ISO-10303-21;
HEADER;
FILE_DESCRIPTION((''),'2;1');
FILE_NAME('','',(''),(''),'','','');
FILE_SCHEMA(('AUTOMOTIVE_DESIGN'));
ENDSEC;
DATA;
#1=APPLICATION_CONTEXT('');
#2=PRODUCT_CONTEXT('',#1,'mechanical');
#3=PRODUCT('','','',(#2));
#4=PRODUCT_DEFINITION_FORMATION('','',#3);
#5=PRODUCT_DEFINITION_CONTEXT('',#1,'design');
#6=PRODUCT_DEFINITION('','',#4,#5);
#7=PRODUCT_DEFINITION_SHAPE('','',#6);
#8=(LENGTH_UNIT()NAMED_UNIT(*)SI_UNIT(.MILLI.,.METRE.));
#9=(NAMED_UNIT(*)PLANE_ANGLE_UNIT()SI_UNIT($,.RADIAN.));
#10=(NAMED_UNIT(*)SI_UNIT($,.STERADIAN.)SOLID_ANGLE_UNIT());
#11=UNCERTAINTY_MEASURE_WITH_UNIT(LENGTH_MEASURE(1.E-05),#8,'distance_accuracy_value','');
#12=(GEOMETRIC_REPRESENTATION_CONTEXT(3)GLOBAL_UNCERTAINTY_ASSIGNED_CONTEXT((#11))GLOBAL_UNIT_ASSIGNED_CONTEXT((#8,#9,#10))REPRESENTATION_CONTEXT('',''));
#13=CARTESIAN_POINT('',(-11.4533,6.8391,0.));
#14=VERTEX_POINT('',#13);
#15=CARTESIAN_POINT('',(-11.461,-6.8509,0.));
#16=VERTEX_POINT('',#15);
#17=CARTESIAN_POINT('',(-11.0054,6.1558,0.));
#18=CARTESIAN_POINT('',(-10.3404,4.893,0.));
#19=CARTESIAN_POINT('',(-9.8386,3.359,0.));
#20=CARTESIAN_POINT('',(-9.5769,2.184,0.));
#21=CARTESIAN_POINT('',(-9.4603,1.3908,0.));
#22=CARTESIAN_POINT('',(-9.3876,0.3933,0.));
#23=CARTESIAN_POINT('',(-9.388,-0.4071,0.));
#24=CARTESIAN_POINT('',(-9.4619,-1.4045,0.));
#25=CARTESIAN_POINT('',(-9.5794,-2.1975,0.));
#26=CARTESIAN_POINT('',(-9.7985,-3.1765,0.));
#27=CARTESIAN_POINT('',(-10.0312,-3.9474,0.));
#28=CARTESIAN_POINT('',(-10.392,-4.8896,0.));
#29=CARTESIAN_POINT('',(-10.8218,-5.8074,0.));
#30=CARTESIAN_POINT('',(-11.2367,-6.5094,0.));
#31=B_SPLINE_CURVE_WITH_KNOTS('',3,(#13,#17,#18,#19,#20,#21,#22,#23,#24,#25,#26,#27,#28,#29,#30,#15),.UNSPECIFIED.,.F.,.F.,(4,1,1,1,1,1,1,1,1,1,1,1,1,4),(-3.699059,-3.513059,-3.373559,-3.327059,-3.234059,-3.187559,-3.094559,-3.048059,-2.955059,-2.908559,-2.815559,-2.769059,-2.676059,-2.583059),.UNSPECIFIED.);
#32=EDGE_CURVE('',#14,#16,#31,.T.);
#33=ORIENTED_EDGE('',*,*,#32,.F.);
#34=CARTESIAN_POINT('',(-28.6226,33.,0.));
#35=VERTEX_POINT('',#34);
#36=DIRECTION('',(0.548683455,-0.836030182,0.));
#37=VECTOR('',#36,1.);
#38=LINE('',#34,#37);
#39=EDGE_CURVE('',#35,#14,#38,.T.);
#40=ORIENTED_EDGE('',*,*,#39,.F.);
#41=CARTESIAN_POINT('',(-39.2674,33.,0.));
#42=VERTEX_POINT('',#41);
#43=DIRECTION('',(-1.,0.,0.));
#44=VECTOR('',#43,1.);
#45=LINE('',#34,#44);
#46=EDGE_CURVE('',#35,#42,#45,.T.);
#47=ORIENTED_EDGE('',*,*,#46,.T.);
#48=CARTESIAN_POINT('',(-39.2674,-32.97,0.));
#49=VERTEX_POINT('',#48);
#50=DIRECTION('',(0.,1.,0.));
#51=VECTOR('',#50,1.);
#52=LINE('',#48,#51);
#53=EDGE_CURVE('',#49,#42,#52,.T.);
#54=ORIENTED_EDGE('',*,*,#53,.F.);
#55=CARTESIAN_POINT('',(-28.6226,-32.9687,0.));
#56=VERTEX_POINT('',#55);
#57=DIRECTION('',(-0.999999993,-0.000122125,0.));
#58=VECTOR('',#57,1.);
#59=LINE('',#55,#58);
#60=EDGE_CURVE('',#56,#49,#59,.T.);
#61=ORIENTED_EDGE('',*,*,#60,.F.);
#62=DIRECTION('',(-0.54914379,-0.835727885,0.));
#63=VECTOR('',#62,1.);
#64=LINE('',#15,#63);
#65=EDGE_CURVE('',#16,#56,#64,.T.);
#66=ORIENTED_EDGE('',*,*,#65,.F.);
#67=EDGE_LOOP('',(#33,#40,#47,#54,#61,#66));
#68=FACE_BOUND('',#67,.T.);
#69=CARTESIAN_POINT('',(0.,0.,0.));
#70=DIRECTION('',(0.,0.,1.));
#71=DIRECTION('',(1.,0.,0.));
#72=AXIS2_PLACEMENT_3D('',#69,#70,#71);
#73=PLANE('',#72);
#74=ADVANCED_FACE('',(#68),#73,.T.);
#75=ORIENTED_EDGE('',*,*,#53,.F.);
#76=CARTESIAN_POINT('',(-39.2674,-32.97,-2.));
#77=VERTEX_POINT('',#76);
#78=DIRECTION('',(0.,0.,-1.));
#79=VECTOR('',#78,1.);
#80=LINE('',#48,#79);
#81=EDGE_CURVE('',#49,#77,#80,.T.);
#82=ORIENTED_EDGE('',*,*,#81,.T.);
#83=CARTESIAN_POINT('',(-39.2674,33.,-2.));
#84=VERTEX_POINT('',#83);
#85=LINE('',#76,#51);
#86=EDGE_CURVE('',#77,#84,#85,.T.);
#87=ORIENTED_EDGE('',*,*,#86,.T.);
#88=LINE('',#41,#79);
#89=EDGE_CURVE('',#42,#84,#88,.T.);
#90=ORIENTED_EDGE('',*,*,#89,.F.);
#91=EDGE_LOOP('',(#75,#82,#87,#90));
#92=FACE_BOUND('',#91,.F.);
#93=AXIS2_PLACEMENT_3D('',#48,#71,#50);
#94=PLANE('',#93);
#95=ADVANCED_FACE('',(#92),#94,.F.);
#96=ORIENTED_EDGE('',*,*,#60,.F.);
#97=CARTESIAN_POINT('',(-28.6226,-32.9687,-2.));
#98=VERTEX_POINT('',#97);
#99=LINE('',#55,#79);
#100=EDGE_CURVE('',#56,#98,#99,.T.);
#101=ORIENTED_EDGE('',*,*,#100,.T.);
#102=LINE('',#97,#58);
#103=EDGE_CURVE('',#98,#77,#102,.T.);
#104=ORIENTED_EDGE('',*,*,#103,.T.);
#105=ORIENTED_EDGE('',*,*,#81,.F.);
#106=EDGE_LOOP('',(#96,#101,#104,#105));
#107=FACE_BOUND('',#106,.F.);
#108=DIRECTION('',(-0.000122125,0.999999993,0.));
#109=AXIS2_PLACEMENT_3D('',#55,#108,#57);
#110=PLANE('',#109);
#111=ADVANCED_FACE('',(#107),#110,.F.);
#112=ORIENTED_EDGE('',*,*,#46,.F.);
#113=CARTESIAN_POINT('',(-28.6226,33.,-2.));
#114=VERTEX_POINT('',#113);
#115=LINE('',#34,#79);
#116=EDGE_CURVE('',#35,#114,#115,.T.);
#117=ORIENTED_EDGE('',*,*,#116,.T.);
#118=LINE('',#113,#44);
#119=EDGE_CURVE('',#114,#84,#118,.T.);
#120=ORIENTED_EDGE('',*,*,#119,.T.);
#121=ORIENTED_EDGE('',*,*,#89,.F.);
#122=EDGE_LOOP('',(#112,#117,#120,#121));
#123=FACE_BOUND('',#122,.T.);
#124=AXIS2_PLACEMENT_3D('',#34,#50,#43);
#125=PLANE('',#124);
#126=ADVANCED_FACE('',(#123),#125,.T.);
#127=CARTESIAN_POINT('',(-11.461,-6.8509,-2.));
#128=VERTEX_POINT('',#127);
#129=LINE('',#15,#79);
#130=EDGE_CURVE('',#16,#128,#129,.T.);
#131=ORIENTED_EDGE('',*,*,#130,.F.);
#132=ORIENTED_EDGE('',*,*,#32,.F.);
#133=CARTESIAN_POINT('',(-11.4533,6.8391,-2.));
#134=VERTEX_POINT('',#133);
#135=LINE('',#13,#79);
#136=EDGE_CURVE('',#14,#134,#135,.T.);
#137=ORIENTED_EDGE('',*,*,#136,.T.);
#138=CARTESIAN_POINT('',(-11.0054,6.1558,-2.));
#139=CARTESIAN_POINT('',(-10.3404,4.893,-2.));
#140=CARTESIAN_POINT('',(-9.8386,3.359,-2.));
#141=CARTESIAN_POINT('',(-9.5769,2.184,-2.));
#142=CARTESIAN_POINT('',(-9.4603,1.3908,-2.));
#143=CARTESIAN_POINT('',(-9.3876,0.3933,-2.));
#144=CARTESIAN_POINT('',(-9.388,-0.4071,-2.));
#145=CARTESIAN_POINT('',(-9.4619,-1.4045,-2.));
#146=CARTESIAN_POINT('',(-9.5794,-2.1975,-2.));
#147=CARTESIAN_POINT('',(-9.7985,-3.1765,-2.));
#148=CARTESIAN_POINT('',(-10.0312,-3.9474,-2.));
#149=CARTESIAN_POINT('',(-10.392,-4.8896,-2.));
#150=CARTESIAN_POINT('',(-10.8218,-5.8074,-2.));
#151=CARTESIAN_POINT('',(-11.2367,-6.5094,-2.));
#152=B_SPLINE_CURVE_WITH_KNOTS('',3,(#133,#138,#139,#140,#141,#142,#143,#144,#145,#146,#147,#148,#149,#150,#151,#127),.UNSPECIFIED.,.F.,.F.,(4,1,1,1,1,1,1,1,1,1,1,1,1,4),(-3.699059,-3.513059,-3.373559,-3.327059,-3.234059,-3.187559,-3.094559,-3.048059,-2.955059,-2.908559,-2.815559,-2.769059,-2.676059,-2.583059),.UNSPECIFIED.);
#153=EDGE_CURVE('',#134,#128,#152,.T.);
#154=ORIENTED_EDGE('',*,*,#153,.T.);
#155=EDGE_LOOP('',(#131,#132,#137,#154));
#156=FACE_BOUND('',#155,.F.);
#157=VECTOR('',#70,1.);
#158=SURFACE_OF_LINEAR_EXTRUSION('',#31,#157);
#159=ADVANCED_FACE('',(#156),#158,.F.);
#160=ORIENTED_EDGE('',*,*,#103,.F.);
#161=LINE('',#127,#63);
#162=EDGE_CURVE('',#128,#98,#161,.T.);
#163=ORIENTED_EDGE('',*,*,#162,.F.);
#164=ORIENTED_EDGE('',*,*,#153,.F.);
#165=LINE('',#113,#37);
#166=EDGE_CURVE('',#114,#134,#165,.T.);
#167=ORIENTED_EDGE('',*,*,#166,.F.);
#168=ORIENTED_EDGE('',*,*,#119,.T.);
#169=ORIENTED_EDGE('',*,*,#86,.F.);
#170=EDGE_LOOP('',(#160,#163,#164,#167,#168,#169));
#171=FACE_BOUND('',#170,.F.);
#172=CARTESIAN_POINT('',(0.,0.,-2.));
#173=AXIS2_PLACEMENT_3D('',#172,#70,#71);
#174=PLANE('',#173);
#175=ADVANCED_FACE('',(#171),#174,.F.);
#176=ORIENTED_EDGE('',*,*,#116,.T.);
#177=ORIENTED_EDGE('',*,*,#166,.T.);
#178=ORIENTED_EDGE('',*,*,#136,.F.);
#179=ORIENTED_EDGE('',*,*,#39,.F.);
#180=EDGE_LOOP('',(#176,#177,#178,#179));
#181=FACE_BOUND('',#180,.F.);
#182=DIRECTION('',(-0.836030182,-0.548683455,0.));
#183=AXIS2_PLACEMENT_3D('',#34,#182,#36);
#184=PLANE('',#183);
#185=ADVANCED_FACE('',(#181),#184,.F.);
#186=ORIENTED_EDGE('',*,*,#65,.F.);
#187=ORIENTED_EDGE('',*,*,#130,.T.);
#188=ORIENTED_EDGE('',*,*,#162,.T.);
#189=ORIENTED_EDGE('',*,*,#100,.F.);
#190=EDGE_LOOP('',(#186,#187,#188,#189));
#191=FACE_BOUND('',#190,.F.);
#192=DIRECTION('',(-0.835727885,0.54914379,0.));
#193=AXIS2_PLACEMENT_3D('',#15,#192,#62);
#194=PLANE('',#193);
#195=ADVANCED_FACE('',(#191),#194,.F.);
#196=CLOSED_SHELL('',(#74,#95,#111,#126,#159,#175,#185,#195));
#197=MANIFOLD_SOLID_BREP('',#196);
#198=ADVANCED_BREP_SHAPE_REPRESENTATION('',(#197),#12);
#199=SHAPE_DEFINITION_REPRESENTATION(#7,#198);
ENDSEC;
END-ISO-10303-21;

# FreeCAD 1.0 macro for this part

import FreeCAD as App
import Part
import Sketcher
Q = App.Units.Quantity

doc = App.newDocument("Part")
params = doc.addObject("Spreadsheet::Sheet", "Params")
for row, (alias, value) in enumerate([
    ("sketch1_height", "65.97 mm"),
    ("pad1_length", "2 mm"),
], start=1):
    params.set(f"A{row}", alias)
    params.set(f"B{row}", "=" + value)
    params.setAlias(f"B{row}", alias)

body = doc.addObject("PartDesign::Body", "Body")

sketch1 = body.newObject("Sketcher::SketchObject", "Sketch")
sketch1.AttachmentSupport = (doc.getObject("XY_Plane"), [""])
sketch1.MapMode = "FlatFace"
sketch1.addGeometry([
    Part.LineSegment(App.Vector(-28.6226, -32.9687, 0), App.Vector(-11.461, -6.8509, 0)),
    Part.BSplineCurve([App.Vector(-11.4533, 6.8391, 0), App.Vector(-11.0054, 6.1558, 0), App.Vector(-10.3404, 4.893, 0), App.Vector(-9.8386, 3.359, 0), App.Vector(-9.5769, 2.184, 0), App.Vector(-9.4603, 1.3908, 0), App.Vector(-9.3876, 0.3933, 0), App.Vector(-9.388, -0.4071, 0), App.Vector(-9.4619, -1.4045, 0), App.Vector(-9.5794, -2.1975, 0), App.Vector(-9.7985, -3.1765, 0), App.Vector(-10.0312, -3.9474, 0), App.Vector(-10.392, -4.8896, 0), App.Vector(-10.8218, -5.8074, 0), App.Vector(-11.2367, -6.5094, 0), App.Vector(-11.461, -6.8509, 0)], [4, 1, 1, 1, 1, 1, 1, 1, 1, 1, 1, 1, 1, 4], [-3.699059, -3.513059, -3.373559, -3.327059, -3.234059, -3.187559, -3.094559, -3.048059, -2.955059, -2.908559, -2.815559, -2.769059, -2.676059, -2.583059], False, 3, [1, 1, 1, 1, 1, 1, 1, 1, 1, 1, 1, 1, 1, 1, 1, 1], False),
    Part.LineSegment(App.Vector(-11.4533, 6.8391, 0), App.Vector(-28.6226, 33, 0)),
    Part.LineSegment(App.Vector(-28.6226, 33, 0), App.Vector(-39.2674, 33, 0)),
    Part.LineSegment(App.Vector(-39.2674, 33, 0), App.Vector(-39.2674, -32.97, 0)),
    Part.LineSegment(App.Vector(-39.2674, -32.97, 0), App.Vector(-28.6226, -32.9687, 0)),
], False)
sketch1.addConstraint([
    Sketcher.Constraint("Block", 1),
    Sketcher.Constraint("Coincident", 0, 2, 1, 2),
    Sketcher.Constraint("Coincident", 1, 1, 2, 1),
    Sketcher.Constraint("Coincident", 2, 2, 3, 1),
    Sketcher.Constraint("Coincident", 3, 2, 4, 1),
    Sketcher.Constraint("Coincident", 4, 2, 5, 1),
    Sketcher.Constraint("Coincident", 5, 2, 0, 1),
    Sketcher.Constraint("Horizontal", 3),
    Sketcher.Constraint("Vertical", 4),
    Sketcher.Constraint("Vertical", 2, 2, 5, 2),
    Sketcher.Constraint("DistanceY", -1, 1, 2, 2, Q("33 mm")),
    Sketcher.Constraint("DistanceY", 4, 2, 4, 1, Q("65.97 mm")),
    Sketcher.Constraint("DistanceX", 3, 2, 3, 1, Q("10.6448 mm")),
    Sketcher.Constraint("Distance", 0, Q("31.2516 mm")),
    Sketcher.Constraint("Distance", 2, Q("31.2918 mm")),
])
sketch1.setExpression("Constraints[11]", "Params.sketch1_height")
pad1 = body.newObject("PartDesign::Pad", "Pad")
pad1.Profile = sketch1
pad1.setExpression("Length", "Params.pad1_length")
pad1.Reversed = True

doc.recompute()
